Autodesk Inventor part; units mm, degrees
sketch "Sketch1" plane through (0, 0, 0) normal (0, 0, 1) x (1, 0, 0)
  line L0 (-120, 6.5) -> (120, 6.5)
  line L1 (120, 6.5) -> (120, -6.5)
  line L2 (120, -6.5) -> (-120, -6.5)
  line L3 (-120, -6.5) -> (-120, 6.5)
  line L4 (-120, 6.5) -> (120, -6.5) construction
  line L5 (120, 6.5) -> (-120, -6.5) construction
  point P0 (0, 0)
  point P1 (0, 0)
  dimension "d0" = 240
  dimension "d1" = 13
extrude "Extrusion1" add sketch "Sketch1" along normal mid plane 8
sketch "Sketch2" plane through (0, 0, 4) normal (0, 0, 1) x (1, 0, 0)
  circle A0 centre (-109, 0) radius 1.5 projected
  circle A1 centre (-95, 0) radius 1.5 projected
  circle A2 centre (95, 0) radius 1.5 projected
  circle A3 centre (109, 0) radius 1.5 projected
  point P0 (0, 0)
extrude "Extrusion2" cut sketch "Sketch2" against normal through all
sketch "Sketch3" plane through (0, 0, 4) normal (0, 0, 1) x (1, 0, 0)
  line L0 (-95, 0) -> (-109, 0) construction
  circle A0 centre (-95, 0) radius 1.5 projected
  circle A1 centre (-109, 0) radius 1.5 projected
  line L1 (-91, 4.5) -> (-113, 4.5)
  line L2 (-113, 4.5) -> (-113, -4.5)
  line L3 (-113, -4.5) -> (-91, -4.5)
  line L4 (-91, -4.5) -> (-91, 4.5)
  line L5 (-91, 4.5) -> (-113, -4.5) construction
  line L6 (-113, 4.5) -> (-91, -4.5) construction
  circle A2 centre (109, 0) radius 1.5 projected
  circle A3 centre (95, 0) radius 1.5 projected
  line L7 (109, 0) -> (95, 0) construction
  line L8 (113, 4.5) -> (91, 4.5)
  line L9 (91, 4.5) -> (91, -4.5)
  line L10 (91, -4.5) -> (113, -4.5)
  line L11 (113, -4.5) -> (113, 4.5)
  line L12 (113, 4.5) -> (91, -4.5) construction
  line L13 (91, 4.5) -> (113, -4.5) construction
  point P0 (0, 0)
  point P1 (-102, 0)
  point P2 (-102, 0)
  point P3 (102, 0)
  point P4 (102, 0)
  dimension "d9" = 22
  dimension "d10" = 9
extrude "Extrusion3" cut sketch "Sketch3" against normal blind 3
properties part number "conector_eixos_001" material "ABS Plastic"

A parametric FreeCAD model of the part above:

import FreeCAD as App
import Part
import Sketcher
Q = App.Units.Quantity


def add_polygon(sketch, points):
    """Adds a closed chain of lines whose ends are joined by coincident constraints."""
    first, n = sketch.GeometryCount, len(points)
    for a, b in zip(points, points[1:] + points[:1]):
        sketch.addGeometry(Part.LineSegment(App.Vector(*a, 0), App.Vector(*b, 0)), False)
    for i in range(n):
        sketch.addConstraint(Sketcher.Constraint("Coincident", first + i, 2, first + (i + 1) % n, 1))

doc = App.newDocument("Part")
body = doc.addObject("PartDesign::Body", "Body")

sketch1 = doc.addObject("Sketcher::SketchObject", "Sketch")
body.addObject(sketch1)
sketch1.AttachmentSupport = (doc.XY_Plane, [""])
sketch1.MapMode = "FlatFace"
add_polygon(sketch1, [(120, 6), (-120, 6), (-120, -6), (120, -6)])
sketch1.addConstraint([
    Sketcher.Constraint("Horizontal", 0),
    Sketcher.Constraint("Vertical", 1),
    Sketcher.Constraint("Horizontal", 2),
    Sketcher.Constraint("Vertical", 3),
    Sketcher.Constraint("Symmetric", 0, 2, 2, 2, -1, 1),
    Sketcher.Constraint("DistanceX", 0, 2, 0, 1, Q("240 mm")),
    Sketcher.Constraint("DistanceY", 1, 2, 1, 1, Q("13 mm")),
])
pad1 = doc.addObject("PartDesign::Pad", "Pad")
body.addObject(pad1)
pad1.Profile = sketch1
pad1.Length = 8
pad1.Midplane = True

sketch2 = doc.addObject("Sketcher::SketchObject", "Sketch001")
body.addObject(sketch2)
sketch2.AttachmentSupport = (doc.XY_Plane, [""])
sketch2.MapMode = "FlatFace"
sketch2.AttachmentOffset = App.Placement(App.Vector(0, 0, 4), App.Rotation())
sketch2.addGeometry([
    Part.Circle(App.Vector(-109, 0, 0), App.Vector(0, 0, 1), 1.5),
    Part.Circle(App.Vector(-95, 0, 0), App.Vector(0, 0, 1), 1.5),
    Part.Circle(App.Vector(95, 0, 0), App.Vector(0, 0, 1), 1.5),
    Part.Circle(App.Vector(109, 0, 0), App.Vector(0, 0, 1), 1.5),
], False)
sketch2.addConstraint([
    Sketcher.Constraint("Equal", 0, 1),
    Sketcher.Constraint("Equal", 1, 2),
    Sketcher.Constraint("Equal", 2, 3),
    Sketcher.Constraint("Symmetric", 1, 3, 2, 3, -1, 1),
    Sketcher.Constraint("Symmetric", 0, 3, 3, 3, -1, 1),
    Sketcher.Constraint("PointOnObject", 0, 3, -1),
    Sketcher.Constraint("PointOnObject", 1, 3, -1),
    Sketcher.Constraint("Diameter", 0, Q("3 mm")),
    Sketcher.Constraint("DistanceX", 0, 3, -1, 1, Q("109 mm")),
    Sketcher.Constraint("DistanceX", 1, 3, -1, 1, Q("95 mm")),
])
pocket1 = doc.addObject("PartDesign::Pocket", "Pocket")
body.addObject(pocket1)
pocket1.Profile = sketch2
pocket1.Type = "ThroughAll"

sketch3 = doc.addObject("Sketcher::SketchObject", "Sketch002")
body.addObject(sketch3)
sketch3.AttachmentSupport = (doc.XY_Plane, [""])
sketch3.MapMode = "FlatFace"
sketch3.AttachmentOffset = App.Placement(App.Vector(0, 0, 4), App.Rotation())
add_polygon(sketch3, [(-91, -4.5), (-91, 4.5), (-113, 4.5), (-113, -4.5)])
sketch3.addGeometry(Part.Circle(App.Vector(-109, 0, 0), App.Vector(0, 0, 1), 1.5), False)
sketch3.addGeometry(Part.Circle(App.Vector(-95, 0, 0), App.Vector(0, 0, 1), 1.5), False)
add_polygon(sketch3, [(113, -4.5), (113, 4.5), (91, 4.5), (91, -4.5)])
sketch3.addGeometry(Part.Circle(App.Vector(95, 0, 0), App.Vector(0, 0, 1), 1.5), False)
sketch3.addGeometry(Part.Circle(App.Vector(109, 0, 0), App.Vector(0, 0, 1), 1.5), False)
sketch3.addConstraint([
    Sketcher.Constraint("Vertical", 0),
    Sketcher.Constraint("Horizontal", 1),
    Sketcher.Constraint("Vertical", 2),
    Sketcher.Constraint("Horizontal", 3),
    Sketcher.Constraint("Vertical", 6),
    Sketcher.Constraint("Horizontal", 7),
    Sketcher.Constraint("Vertical", 8),
    Sketcher.Constraint("Horizontal", 9),
    Sketcher.Constraint("Equal", 4, 5),
    Sketcher.Constraint("Equal", 5, 10),
    Sketcher.Constraint("Equal", 10, 11),
    Sketcher.Constraint("Symmetric", 5, 3, 10, 3, -1, 1),
    Sketcher.Constraint("Symmetric", 4, 3, 11, 3, -1, 1),
    Sketcher.Constraint("Symmetric", 2, 2, 6, 2, -1, 1),
    Sketcher.Constraint("Symmetric", 0, 2, 8, 2, -1, 1),
    Sketcher.Constraint("PointOnObject", 4, 3, -1),
    Sketcher.Constraint("PointOnObject", 5, 3, -1),
    Sketcher.Constraint("Horizontal", 1, 2, 6, 2),
    Sketcher.Constraint("DistanceX", 1, 2, 1, 1, Q("22 mm")),
    Sketcher.Constraint("DistanceY", 0, 1, 0, 2, Q("9 mm")),
    Sketcher.Constraint("Diameter", 4, Q("3 mm")),
    Sketcher.Constraint("DistanceX", 4, 3, -1, 1, Q("109 mm")),
    Sketcher.Constraint("DistanceX", 5, 3, -1, 1, Q("95 mm")),
    Sketcher.Constraint("DistanceX", 0, 2, -1, 1, Q("91 mm")),
])
pocket2 = doc.addObject("PartDesign::Pocket", "Pocket001")
body.addObject(pocket2)
pocket2.Profile = sketch3
pocket2.Length = 3

doc.recompute()
